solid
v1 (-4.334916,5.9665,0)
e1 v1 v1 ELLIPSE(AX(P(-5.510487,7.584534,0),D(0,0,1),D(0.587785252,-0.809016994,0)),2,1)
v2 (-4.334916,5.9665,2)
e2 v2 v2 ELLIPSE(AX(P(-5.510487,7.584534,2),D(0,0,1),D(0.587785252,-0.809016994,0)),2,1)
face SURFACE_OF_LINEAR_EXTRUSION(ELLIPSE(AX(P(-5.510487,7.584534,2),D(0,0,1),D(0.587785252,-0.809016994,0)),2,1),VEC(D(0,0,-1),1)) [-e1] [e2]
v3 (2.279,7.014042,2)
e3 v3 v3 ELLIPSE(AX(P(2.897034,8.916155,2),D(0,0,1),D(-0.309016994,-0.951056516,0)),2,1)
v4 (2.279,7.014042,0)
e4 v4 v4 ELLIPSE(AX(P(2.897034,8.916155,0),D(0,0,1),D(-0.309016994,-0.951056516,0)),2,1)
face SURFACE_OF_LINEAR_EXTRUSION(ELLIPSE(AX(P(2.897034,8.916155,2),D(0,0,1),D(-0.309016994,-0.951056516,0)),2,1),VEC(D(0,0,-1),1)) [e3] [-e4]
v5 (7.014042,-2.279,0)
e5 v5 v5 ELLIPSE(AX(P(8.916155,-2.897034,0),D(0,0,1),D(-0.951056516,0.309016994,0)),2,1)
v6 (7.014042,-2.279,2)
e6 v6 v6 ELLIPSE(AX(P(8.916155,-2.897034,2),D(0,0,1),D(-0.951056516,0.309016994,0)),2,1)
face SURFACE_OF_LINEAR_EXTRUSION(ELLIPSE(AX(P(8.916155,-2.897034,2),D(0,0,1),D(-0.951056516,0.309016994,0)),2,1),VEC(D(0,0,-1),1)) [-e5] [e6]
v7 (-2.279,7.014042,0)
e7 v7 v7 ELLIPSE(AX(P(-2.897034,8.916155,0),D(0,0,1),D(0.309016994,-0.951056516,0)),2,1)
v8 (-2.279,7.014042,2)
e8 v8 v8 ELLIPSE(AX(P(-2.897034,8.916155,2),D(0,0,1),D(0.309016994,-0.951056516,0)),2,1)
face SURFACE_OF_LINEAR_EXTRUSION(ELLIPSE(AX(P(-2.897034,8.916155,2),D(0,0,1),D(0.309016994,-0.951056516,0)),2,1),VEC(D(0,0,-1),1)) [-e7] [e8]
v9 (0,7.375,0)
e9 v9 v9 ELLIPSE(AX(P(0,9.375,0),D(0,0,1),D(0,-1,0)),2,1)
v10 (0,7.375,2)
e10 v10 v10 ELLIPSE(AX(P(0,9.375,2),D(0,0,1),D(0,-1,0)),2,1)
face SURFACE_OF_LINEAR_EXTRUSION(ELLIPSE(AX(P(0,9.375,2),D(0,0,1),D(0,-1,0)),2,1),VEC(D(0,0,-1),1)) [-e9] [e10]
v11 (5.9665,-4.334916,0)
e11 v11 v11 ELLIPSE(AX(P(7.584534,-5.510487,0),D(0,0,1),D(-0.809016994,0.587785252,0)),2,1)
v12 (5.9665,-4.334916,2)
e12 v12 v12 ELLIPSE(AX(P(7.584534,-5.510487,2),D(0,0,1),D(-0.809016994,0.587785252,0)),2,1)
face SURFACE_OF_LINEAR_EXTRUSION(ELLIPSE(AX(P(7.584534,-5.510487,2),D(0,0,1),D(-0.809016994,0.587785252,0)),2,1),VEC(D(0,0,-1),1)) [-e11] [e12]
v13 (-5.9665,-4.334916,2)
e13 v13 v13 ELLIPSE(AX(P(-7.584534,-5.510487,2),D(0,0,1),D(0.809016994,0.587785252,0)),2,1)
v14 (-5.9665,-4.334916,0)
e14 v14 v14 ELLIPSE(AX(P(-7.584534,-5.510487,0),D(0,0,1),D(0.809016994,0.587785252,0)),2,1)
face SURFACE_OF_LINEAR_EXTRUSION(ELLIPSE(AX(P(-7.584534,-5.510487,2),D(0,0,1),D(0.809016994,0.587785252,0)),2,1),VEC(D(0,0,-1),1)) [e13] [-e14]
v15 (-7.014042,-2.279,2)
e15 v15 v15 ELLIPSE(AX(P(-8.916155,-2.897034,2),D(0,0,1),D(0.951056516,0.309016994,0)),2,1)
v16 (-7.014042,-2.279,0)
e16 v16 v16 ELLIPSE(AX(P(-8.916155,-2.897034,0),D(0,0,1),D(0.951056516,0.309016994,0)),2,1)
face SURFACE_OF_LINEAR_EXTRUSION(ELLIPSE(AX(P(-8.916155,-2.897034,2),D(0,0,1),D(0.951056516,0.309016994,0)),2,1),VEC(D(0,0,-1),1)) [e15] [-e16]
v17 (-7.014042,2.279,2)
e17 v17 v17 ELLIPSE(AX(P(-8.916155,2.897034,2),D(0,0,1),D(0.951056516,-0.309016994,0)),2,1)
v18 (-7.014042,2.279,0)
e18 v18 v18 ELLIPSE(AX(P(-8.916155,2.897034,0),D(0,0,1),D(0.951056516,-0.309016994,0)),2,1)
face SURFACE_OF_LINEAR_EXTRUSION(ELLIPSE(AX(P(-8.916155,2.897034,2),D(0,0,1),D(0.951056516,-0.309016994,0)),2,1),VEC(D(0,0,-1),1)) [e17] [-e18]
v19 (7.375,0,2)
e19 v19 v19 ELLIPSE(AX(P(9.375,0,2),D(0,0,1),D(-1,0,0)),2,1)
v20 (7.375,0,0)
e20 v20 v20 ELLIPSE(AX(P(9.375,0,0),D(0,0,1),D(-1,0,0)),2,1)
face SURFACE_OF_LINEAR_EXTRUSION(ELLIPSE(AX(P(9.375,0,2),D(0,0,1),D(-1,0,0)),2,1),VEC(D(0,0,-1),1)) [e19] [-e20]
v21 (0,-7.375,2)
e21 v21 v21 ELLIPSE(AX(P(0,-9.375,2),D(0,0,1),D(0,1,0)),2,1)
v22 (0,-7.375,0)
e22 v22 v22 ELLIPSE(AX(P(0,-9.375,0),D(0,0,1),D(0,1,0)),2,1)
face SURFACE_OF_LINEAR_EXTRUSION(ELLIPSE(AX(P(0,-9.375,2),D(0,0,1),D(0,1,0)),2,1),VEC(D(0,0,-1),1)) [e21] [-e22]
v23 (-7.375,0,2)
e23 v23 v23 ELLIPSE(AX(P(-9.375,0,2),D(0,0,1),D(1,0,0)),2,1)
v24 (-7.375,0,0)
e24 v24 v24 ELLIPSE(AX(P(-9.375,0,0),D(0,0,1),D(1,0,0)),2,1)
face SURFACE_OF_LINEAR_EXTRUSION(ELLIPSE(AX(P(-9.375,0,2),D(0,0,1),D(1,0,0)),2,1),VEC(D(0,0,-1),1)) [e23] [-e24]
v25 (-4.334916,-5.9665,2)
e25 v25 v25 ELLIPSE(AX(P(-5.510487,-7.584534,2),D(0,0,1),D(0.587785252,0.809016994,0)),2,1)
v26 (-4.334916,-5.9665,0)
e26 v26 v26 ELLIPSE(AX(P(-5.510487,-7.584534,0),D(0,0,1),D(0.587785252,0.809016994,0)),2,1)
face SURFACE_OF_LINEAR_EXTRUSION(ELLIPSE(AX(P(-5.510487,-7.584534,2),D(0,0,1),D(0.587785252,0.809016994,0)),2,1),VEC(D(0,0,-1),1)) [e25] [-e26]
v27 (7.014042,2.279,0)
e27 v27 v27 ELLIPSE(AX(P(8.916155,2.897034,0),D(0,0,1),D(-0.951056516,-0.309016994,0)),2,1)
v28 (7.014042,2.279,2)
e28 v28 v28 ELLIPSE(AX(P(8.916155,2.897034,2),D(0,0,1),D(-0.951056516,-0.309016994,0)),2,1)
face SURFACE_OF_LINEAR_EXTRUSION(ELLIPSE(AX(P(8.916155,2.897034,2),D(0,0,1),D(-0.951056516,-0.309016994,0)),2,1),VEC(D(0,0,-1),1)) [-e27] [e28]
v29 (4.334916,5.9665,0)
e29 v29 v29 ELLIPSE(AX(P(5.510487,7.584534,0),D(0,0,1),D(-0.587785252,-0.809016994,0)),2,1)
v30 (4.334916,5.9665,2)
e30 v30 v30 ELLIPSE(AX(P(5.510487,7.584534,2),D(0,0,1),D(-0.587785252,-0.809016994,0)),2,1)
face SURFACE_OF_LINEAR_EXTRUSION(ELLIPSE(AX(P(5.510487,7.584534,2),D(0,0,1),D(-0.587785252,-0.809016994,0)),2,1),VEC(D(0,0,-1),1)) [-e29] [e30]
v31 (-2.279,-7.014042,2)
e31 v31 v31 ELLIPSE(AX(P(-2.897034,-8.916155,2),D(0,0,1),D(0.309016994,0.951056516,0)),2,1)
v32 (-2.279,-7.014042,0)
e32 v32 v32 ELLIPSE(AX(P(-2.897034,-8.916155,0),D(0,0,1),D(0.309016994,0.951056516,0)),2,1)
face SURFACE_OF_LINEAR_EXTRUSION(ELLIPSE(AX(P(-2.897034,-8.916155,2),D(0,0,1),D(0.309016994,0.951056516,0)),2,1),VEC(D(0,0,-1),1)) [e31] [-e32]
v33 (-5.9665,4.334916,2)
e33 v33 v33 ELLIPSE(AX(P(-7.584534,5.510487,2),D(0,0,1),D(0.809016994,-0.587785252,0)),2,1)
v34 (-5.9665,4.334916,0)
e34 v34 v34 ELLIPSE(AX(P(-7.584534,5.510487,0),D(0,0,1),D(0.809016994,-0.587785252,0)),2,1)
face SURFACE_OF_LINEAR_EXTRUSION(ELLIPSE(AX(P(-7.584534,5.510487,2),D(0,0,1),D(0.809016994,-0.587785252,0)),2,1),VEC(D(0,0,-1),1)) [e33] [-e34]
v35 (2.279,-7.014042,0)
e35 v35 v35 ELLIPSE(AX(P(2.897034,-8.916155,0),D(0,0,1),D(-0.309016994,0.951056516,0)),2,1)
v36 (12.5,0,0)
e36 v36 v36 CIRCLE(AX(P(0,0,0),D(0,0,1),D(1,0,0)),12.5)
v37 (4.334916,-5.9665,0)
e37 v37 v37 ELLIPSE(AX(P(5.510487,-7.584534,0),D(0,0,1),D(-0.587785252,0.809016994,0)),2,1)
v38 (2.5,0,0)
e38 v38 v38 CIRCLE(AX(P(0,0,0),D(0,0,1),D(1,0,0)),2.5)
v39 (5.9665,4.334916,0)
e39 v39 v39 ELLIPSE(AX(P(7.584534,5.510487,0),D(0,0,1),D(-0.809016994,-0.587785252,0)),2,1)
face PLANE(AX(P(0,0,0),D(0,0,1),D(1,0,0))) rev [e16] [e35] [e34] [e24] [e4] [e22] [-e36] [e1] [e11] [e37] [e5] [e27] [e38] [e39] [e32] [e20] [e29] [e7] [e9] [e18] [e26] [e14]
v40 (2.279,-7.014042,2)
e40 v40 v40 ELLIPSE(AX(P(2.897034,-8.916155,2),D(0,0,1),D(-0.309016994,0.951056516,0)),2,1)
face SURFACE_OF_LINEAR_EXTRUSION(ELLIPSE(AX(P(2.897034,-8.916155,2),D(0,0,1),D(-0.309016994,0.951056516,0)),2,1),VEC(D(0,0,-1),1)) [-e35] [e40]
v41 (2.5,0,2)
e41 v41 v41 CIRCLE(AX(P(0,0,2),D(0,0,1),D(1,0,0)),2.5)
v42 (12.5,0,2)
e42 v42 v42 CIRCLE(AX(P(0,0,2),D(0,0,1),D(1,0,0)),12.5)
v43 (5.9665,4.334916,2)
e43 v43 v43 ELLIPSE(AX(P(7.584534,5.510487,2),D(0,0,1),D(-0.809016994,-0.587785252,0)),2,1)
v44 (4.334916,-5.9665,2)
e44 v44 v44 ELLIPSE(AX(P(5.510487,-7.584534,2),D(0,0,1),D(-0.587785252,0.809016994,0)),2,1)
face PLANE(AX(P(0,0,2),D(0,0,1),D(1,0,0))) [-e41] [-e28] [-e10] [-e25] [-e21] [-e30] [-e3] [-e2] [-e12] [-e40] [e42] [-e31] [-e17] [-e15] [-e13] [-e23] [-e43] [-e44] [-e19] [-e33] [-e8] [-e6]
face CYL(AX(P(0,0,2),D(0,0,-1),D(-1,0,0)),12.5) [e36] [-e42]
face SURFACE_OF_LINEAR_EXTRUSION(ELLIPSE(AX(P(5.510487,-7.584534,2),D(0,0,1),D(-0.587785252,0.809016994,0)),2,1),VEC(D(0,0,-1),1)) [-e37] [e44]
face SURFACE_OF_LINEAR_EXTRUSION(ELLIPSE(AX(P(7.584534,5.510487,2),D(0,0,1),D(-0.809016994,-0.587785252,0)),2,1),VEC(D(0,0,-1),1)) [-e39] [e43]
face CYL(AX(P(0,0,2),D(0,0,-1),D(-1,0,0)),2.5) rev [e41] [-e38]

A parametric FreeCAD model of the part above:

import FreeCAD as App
import Part
import Sketcher

doc = App.newDocument("Part")
body = doc.addObject("PartDesign::Body", "Body")

sketch1 = doc.addObject("Sketcher::SketchObject", "Sketch")
body.addObject(sketch1)
sketch1.AttachmentSupport = (doc.XY_Plane, [""])
sketch1.MapMode = "FlatFace"
sketch1.addGeometry([
    Part.Circle(App.Vector(0, 0, 0), App.Vector(0, 0, 1), 12.5),
    Part.Ellipse(App.Vector(-2.279, -7.014042, 0), App.Vector(-3.848091, -8.607138, 0), App.Vector(-2.897034, -8.916155, 0)),
    Part.Ellipse(App.Vector(-4.334916, -5.9665, 0), App.Vector(-6.319504, -6.996749, 0), App.Vector(-5.510487, -7.584534, 0)),
    Part.Ellipse(App.Vector(-7.014042, -2.279, 0), App.Vector(-9.225172, -1.945978, 0), App.Vector(-8.916155, -2.897034, 0)),
    Part.Ellipse(App.Vector(-9.202568, -6.686057, 0), App.Vector(-6.996749, -6.319504, 0), App.Vector(-7.584534, -5.510487, 0)),
    Part.Ellipse(App.Vector(0, -7.375, 0), App.Vector(-1, -9.375, 0), App.Vector(0, -9.375, 0)),
    Part.Ellipse(App.Vector(2.279, -7.014042, 0), App.Vector(1.945978, -9.225172, 0), App.Vector(2.897034, -8.916155, 0)),
    Part.Ellipse(App.Vector(4.334916, -5.9665, 0), App.Vector(4.70147, -8.17232, 0), App.Vector(5.510487, -7.584534, 0)),
    Part.Ellipse(App.Vector(9.202568, -6.686057, 0), App.Vector(8.17232, -4.70147, 0), App.Vector(7.584534, -5.510487, 0)),
    Part.Ellipse(App.Vector(10.818268, -3.515068, 0), App.Vector(9.225172, -1.945978, 0), App.Vector(8.916155, -2.897034, 0)),
    Part.Ellipse(App.Vector(-7.375, 0, 0), App.Vector(-9.375, 1, 0), App.Vector(-9.375, 0, 0)),
    Part.Ellipse(App.Vector(-10.818268, 3.515068, 0), App.Vector(-9.225172, 1.945978, 0), App.Vector(-8.916155, 2.897034, 0)),
    Part.Ellipse(App.Vector(-5.9665, 4.334916, 0), App.Vector(-6.996749, 6.319504, 0), App.Vector(-7.584534, 5.510487, 0)),
    Part.Ellipse(App.Vector(-4.334916, 5.9665, 0), App.Vector(-4.70147, 8.17232, 0), App.Vector(-5.510487, 7.584534, 0)),
    Part.Ellipse(App.Vector(-2.279, 7.014042, 0), App.Vector(-1.945978, 9.225172, 0), App.Vector(-2.897034, 8.916155, 0)),
    Part.Circle(App.Vector(0, 0, 0), App.Vector(0, 0, 1), 2.5),
    Part.Ellipse(App.Vector(7.375, 0, 0), App.Vector(9.375, -1, 0), App.Vector(9.375, 0, 0)),
    Part.Ellipse(App.Vector(5.9665, 4.334916, 0), App.Vector(8.17232, 4.70147, 0), App.Vector(7.584534, 5.510487, 0)),
    Part.Ellipse(App.Vector(10.818268, 3.515068, 0), App.Vector(8.607138, 3.848091, 0), App.Vector(8.916155, 2.897034, 0)),
    Part.Ellipse(App.Vector(6.686057, 9.202568, 0), App.Vector(4.70147, 8.17232, 0), App.Vector(5.510487, 7.584534, 0)),
    Part.Ellipse(App.Vector(0, 7.375, 0), App.Vector(1, 9.375, 0), App.Vector(0, 9.375, 0)),
    Part.Ellipse(App.Vector(3.515068, 10.818268, 0), App.Vector(1.945978, 9.225172, 0), App.Vector(2.897034, 8.916155, 0)),
], False)
sketch1.addConstraint([
    Sketcher.Constraint("Block", 1),
    Sketcher.Constraint("Block", 2),
    Sketcher.Constraint("Block", 3),
    Sketcher.Constraint("Block", 4),
    Sketcher.Constraint("Block", 5),
    Sketcher.Constraint("Block", 6),
    Sketcher.Constraint("Block", 7),
    Sketcher.Constraint("Block", 8),
    Sketcher.Constraint("Block", 9),
    Sketcher.Constraint("Block", 10),
    Sketcher.Constraint("Block", 11),
    Sketcher.Constraint("Block", 12),
    Sketcher.Constraint("Block", 13),
    Sketcher.Constraint("Block", 14),
    Sketcher.Constraint("Block", 16),
    Sketcher.Constraint("Block", 17),
    Sketcher.Constraint("Block", 18),
    Sketcher.Constraint("Block", 19),
    Sketcher.Constraint("Block", 20),
    Sketcher.Constraint("Block", 21),
    Sketcher.Constraint("Coincident", 0, 3, -1, 1),
    Sketcher.Constraint("Coincident", 15, 3, -1, 1),
    Sketcher.Constraint("Diameter", 0, 25.0),
    Sketcher.Constraint("Diameter", 15, 5.0),
])
pad1 = doc.addObject("PartDesign::Pad", "Pad")
body.addObject(pad1)
pad1.Profile = sketch1
pad1.Length = 2

doc.recompute()
